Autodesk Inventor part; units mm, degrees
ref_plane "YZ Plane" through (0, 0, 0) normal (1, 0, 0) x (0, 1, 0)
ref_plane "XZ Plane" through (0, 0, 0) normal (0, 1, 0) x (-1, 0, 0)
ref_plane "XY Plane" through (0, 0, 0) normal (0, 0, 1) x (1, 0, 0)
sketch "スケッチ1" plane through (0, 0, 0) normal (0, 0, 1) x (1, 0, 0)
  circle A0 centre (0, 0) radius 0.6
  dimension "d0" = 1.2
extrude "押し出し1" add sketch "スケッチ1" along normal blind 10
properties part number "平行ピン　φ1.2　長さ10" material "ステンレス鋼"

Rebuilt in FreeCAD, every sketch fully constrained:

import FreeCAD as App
import Part
import Sketcher
Q = App.Units.Quantity

doc = App.newDocument("Part")
body = doc.addObject("PartDesign::Body", "Body")

# Sketch on XY plane
sketch1 = doc.addObject("Sketcher::SketchObject", "Sketch")
body.addObject(sketch1)
sketch1.AttachmentSupport = (doc.XY_Plane, [""])
sketch1.MapMode = "FlatFace"
sketch1.addGeometry(Part.Circle(App.Vector(0, 0, 0), App.Vector(0, 0, 1), 0.6), False)
sketch1.addConstraint(Sketcher.Constraint("Coincident", 0, 3, -1, 1))
sketch1.addConstraint(Sketcher.Constraint("Diameter", 0, Q("1.2 mm")))
pad1 = doc.addObject("PartDesign::Pad", "Pad")
body.addObject(pad1)
pad1.Profile = sketch1
pad1.Length = 10

doc.recompute()
